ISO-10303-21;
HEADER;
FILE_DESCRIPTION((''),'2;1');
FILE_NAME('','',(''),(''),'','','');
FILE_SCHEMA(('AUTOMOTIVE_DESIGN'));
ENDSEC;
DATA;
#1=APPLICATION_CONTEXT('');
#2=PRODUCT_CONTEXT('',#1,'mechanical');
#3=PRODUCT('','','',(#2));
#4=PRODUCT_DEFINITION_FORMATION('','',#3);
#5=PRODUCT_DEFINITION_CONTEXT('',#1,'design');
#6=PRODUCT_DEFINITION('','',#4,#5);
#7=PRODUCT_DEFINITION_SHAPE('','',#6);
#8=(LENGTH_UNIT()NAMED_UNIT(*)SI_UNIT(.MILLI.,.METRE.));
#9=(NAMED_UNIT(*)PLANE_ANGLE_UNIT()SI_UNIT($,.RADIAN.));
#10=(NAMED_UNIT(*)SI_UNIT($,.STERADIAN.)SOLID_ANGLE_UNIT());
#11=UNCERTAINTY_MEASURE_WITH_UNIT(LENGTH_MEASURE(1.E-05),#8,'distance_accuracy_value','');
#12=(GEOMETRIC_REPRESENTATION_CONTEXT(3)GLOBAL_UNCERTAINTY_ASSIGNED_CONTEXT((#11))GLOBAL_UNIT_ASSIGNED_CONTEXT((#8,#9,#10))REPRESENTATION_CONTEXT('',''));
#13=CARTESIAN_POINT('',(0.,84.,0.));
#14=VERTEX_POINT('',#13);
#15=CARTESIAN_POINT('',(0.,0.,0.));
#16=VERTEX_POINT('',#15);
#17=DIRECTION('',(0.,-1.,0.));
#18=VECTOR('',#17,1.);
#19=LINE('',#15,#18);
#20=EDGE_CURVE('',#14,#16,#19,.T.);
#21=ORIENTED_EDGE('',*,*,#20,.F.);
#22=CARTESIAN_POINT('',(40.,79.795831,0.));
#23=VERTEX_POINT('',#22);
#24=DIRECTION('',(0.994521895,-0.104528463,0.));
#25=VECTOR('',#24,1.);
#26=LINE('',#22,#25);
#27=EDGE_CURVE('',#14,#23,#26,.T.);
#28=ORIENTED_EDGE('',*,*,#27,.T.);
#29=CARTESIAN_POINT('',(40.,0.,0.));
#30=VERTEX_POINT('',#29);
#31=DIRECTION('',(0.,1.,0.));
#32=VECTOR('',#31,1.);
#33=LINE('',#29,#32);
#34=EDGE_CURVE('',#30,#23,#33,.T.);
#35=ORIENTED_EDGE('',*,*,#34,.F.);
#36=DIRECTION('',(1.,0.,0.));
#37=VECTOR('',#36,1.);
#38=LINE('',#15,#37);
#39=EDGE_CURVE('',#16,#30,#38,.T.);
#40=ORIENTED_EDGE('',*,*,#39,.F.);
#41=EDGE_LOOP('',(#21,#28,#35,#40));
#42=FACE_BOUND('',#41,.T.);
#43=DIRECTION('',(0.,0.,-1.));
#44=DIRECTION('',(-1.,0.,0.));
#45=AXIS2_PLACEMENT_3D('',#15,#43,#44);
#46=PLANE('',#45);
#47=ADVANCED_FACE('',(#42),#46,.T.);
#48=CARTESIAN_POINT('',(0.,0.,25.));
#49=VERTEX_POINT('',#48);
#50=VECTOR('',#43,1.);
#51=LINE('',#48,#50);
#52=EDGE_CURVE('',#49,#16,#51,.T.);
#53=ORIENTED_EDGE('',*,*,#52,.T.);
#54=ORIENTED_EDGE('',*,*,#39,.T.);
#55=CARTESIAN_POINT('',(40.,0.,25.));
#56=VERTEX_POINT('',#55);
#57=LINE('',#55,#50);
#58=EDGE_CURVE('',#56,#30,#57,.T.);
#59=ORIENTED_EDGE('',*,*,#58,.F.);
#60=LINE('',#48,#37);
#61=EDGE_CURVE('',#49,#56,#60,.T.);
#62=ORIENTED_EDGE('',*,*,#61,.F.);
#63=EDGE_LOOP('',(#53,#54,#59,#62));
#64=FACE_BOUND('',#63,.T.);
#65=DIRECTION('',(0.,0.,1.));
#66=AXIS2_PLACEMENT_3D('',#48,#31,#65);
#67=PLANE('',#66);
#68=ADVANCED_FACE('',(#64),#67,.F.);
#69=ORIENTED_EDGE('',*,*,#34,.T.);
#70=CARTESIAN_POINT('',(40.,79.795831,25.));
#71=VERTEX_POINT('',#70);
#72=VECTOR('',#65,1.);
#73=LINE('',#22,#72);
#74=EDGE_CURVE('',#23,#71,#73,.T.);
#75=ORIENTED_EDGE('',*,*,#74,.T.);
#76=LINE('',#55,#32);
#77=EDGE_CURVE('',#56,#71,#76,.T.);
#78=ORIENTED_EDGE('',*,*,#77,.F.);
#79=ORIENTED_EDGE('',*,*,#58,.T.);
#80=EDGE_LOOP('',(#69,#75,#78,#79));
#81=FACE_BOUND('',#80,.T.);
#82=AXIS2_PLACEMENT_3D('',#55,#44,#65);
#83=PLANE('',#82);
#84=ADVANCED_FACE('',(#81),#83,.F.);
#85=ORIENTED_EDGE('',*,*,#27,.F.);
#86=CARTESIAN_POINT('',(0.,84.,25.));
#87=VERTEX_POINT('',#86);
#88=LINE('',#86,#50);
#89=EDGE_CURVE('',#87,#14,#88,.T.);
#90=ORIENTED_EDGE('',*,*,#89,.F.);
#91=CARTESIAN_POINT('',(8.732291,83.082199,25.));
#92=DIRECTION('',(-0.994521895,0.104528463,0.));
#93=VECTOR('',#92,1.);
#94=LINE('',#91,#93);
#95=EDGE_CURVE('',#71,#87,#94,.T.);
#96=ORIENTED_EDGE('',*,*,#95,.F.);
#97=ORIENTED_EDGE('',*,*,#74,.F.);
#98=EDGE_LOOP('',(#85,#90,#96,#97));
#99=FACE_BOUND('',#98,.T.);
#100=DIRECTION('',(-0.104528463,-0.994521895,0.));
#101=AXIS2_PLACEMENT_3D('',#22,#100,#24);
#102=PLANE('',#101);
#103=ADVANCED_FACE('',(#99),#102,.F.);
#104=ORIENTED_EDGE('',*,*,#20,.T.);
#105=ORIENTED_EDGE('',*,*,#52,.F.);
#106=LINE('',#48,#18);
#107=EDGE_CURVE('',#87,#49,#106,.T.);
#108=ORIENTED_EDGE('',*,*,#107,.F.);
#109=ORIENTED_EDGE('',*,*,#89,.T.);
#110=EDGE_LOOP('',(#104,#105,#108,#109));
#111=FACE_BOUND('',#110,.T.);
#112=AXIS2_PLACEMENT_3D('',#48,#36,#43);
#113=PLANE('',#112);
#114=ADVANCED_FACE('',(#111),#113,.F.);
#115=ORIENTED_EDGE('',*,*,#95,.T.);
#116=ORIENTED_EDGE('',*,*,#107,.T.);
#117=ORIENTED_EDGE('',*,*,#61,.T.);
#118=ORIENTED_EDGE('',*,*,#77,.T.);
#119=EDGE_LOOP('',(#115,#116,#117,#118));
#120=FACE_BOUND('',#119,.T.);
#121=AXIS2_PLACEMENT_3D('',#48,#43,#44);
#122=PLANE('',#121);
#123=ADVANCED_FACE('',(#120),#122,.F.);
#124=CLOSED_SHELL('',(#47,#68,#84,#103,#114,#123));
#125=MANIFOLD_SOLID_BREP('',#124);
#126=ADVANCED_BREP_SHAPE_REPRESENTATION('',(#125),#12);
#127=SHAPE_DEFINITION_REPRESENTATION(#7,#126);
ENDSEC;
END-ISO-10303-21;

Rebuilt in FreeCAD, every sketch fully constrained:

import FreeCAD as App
import Part
import Sketcher
from FreeCAD import Vector
Q = App.Units.Quantity


def add_polygon(sketch, points):
    """Adds a closed chain of lines whose ends are joined by coincident constraints."""
    first, n = sketch.GeometryCount, len(points)
    for a, b in zip(points, points[1:] + points[:1]):
        sketch.addGeometry(Part.LineSegment(App.Vector(*a, 0), App.Vector(*b, 0)), False)
    for i in range(n):
        sketch.addConstraint(Sketcher.Constraint("Coincident", first + i, 2, first + (i + 1) % n, 1))

doc = App.newDocument("Part")
body = doc.addObject("PartDesign::Body", "Body")

# Sketch on XY plane
sketch1 = doc.addObject("Sketcher::SketchObject", "Sketch")
body.addObject(sketch1)
sketch1.AttachmentSupport = (doc.XY_Plane, [""])
sketch1.MapMode = "FlatFace"
add_polygon(sketch1, [(0, 84), (0, 0), (40, 0), (40, 84)])  # lines 0-3
sketch1.addConstraint([
    Sketcher.Constraint("Vertical", 0),
    Sketcher.Constraint("Horizontal", 1),
    Sketcher.Constraint("Vertical", 2),
    Sketcher.Constraint("Horizontal", 3),
    Sketcher.Constraint("Coincident", 0, 2, -1, 1),
    Sketcher.Constraint("DistanceX", 1, 1, 1, 2, Q("40 mm")),
    Sketcher.Constraint("DistanceY", 0, 2, 0, 1, Q("84 mm")),
])
pad1 = doc.addObject("PartDesign::Pad", "Pad")
body.addObject(pad1)
pad1.Profile = sketch1
pad1.Length = 25

# Sketch on XY plane
sketch2 = doc.addObject("Sketcher::SketchObject", "Sketch001")
body.addObject(sketch2)
sketch2.AttachmentSupport = (doc.XY_Plane, [""])
sketch2.MapMode = "FlatFace"
sketch2.AttachmentOffset = App.Placement(Vector(0, 0, 25), App.Rotation())
add_polygon(sketch2, [(0, 84), (40, 79.8), (40, 84)])  # lines 0-2
sketch2.addConstraint([
    Sketcher.Constraint("Vertical", 1),
    Sketcher.Constraint("Horizontal", 2),
    Sketcher.Constraint("PointOnObject", 2, 2, -2),
    Sketcher.Constraint("DistanceX", 2, 2, 2, 1, Q("40 mm")),
    Sketcher.Constraint("Angle", 0, Q("-6 deg")),
    Sketcher.Constraint("DistanceY", -1, 1, 1, 2, Q("84 mm")),
])
pocket1 = doc.addObject("PartDesign::Pocket", "Pocket")
body.addObject(pocket1)
pocket1.Profile = sketch2
pocket1.Type = "ThroughAll"
pocket1.Midplane = True

doc.recompute()
